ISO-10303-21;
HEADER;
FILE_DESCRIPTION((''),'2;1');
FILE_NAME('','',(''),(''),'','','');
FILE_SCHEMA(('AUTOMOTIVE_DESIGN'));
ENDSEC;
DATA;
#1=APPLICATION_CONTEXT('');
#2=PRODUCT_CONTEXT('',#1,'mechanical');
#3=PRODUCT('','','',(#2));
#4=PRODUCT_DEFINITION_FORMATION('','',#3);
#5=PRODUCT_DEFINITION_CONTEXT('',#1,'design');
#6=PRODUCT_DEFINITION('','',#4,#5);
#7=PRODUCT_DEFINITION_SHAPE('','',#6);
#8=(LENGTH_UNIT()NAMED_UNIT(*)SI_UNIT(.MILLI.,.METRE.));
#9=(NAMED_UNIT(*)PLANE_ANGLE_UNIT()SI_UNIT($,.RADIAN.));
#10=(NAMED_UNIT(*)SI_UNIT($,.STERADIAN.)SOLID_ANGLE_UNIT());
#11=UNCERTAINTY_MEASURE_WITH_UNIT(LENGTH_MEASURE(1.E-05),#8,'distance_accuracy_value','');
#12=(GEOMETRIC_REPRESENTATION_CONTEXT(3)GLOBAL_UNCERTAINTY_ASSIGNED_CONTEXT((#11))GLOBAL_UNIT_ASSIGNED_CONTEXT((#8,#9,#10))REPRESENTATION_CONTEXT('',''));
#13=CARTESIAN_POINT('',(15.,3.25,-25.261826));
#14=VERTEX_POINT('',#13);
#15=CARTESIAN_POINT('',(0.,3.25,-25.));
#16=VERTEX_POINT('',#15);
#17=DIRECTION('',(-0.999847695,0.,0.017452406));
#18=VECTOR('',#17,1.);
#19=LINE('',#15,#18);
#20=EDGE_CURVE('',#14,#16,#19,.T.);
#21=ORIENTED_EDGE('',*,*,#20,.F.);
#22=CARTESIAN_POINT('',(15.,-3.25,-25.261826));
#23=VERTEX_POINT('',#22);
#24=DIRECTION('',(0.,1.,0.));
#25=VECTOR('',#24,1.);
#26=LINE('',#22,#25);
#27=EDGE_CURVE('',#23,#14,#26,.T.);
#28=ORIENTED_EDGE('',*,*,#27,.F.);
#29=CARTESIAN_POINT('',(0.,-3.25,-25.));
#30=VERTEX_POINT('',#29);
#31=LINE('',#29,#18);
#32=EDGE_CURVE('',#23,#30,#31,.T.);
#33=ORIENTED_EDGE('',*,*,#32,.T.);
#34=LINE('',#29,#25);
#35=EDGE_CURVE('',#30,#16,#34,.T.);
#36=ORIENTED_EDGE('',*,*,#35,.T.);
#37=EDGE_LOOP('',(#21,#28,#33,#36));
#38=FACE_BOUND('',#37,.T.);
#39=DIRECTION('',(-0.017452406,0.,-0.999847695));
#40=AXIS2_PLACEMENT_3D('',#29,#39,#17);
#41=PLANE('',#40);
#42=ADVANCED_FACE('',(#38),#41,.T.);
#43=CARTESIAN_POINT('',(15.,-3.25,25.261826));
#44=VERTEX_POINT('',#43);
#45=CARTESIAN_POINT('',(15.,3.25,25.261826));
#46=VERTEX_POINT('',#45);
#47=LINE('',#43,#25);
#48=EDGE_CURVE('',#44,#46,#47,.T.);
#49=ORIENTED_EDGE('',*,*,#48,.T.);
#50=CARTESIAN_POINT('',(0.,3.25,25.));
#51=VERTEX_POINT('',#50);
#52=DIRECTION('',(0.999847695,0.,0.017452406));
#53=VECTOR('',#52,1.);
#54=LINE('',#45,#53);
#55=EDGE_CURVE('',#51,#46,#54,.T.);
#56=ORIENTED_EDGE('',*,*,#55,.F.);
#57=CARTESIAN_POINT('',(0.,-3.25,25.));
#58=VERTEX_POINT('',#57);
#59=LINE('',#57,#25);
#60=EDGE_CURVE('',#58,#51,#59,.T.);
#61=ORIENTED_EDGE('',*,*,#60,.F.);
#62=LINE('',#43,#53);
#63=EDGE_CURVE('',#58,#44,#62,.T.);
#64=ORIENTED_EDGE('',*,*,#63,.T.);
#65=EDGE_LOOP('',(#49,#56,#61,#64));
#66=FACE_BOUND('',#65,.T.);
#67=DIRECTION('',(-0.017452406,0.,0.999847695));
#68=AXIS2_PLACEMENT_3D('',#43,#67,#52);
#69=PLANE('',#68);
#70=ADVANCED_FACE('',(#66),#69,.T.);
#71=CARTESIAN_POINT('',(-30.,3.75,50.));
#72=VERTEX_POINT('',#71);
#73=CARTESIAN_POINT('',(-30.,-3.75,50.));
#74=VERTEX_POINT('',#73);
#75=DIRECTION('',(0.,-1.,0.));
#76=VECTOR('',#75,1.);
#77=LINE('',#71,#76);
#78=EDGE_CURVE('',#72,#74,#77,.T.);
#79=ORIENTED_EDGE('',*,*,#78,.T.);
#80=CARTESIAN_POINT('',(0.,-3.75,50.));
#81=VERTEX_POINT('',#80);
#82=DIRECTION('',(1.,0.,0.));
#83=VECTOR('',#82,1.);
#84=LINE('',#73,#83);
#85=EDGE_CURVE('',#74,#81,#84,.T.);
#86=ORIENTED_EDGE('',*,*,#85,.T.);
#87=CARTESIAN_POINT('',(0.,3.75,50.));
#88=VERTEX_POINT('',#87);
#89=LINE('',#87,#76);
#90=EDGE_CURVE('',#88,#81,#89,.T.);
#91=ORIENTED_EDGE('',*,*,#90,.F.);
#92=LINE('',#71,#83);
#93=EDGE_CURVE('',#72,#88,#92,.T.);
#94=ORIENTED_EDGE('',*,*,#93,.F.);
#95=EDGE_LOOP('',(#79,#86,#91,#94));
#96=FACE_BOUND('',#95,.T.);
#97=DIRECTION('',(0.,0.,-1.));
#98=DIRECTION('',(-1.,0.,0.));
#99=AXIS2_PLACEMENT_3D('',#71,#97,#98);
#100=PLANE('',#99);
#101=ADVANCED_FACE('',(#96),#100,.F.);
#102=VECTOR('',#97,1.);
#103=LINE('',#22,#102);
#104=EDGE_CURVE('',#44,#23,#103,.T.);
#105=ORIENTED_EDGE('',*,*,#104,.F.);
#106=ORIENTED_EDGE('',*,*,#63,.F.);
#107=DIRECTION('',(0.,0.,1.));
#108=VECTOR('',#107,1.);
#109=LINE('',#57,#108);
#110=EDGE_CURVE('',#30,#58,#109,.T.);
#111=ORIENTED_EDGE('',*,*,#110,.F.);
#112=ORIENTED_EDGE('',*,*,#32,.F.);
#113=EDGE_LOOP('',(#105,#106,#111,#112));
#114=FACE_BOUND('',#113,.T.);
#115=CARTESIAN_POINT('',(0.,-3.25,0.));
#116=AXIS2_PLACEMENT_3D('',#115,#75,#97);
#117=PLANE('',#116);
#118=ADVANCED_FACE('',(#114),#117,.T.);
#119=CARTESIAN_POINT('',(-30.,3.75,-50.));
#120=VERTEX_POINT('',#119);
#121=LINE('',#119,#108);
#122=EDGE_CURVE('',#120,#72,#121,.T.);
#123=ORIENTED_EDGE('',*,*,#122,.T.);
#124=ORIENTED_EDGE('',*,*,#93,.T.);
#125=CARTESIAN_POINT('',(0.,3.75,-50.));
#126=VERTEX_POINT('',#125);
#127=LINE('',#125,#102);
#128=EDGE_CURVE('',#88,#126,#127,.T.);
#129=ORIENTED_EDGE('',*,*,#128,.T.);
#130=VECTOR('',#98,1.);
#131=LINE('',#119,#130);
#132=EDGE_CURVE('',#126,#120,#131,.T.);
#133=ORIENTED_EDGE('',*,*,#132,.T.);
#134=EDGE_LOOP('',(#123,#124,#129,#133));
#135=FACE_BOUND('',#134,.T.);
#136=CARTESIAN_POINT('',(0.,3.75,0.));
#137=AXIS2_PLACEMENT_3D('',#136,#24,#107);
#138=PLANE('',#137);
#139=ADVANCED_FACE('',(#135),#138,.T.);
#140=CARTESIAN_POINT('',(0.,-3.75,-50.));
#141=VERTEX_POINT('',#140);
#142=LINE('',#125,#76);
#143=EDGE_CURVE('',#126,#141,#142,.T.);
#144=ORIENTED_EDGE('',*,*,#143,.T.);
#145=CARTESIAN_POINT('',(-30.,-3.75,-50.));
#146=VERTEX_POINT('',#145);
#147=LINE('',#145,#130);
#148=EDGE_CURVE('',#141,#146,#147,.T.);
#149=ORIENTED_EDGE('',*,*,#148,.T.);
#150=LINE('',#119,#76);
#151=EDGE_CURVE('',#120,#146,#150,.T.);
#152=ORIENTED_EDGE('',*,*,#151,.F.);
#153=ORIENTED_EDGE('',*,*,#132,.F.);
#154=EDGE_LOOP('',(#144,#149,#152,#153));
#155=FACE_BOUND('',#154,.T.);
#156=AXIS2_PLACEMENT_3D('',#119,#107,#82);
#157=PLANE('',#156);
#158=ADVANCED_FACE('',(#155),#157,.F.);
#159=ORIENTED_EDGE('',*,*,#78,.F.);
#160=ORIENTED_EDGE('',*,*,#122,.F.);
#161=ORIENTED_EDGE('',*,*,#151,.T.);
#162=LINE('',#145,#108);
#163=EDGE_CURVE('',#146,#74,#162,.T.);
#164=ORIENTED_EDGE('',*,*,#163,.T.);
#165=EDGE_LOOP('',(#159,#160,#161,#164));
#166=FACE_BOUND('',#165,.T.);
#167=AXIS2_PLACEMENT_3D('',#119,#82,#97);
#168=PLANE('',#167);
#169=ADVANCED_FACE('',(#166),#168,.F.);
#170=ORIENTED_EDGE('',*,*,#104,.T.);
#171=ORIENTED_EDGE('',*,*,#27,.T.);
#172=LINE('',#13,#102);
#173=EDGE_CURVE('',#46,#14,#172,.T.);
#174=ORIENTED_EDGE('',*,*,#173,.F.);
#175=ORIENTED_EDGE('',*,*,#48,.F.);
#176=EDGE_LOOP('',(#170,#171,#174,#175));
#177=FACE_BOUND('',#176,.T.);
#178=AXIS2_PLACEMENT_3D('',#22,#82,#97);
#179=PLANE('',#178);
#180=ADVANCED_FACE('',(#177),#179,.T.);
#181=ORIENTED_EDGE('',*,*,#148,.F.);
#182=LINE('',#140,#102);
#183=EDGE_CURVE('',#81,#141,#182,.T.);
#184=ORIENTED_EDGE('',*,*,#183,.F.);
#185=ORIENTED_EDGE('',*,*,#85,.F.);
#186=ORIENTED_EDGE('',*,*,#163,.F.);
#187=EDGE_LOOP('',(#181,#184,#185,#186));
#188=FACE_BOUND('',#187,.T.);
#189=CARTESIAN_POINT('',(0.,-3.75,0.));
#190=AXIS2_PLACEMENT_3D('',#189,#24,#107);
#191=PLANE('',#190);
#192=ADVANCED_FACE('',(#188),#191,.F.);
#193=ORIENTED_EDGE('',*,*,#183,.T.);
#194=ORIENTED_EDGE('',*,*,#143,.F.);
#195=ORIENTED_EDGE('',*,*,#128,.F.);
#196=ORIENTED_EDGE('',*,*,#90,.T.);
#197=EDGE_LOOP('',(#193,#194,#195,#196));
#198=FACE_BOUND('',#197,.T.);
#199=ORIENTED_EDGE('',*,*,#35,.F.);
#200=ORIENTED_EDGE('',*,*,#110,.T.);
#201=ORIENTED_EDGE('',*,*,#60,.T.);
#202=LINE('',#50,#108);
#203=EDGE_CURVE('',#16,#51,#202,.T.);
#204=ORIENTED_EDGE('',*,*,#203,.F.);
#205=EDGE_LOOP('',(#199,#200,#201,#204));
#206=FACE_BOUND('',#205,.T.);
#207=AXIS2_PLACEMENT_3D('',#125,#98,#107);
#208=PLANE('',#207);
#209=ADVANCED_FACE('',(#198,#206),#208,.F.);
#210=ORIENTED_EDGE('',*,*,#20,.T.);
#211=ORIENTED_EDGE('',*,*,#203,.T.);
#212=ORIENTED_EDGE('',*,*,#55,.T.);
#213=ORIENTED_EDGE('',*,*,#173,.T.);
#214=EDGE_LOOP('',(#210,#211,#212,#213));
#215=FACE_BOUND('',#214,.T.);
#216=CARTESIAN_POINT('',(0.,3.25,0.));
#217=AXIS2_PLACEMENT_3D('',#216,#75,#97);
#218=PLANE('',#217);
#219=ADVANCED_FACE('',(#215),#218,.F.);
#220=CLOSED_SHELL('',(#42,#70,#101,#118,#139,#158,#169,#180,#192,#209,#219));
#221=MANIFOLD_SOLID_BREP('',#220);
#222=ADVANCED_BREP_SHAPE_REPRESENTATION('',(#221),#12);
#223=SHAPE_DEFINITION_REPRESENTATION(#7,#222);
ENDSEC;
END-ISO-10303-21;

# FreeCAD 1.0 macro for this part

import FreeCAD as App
import Part
import Sketcher
from FreeCAD import Vector
Q = App.Units.Quantity

doc = App.newDocument("Part")
params = doc.addObject("Spreadsheet::Sheet", "Params")
for row, (alias, value) in enumerate([
    ("sketch1_width", "30 mm"),
    ("sketch1_height", "100 mm"),
    ("pad1_length", "7.5 mm"),
    ("sketch2_height", "50 mm"),
    ("pad2_length", "6.5 mm"),
], start=1):
    params.set(f"A{row}", alias)
    params.set(f"B{row}", "=" + value)
    params.setAlias(f"B{row}", alias)

body = doc.addObject("PartDesign::Body", "Body")

# Sketch on XZ plane
sketch1 = body.newObject("Sketcher::SketchObject", "Sketch")
sketch1.AttachmentSupport = (doc.getObject("XZ_Plane"), [""])
sketch1.MapMode = "FlatFace"
sketch1.addGeometry(Part.LineSegment(Vector(-30, -50, 0), Vector(-30, 50, 0)), False)
sketch1.addGeometry(Part.LineSegment(Vector(-30, 50, 0), Vector(0, 50, 0)), False)
sketch1.addGeometry(Part.LineSegment(Vector(0, 50, 0), Vector(0, -50, 0)), False)
sketch1.addGeometry(Part.LineSegment(Vector(0, -50, 0), Vector(-30, -50, 0)), False)
sketch1.addConstraint(Sketcher.Constraint("Coincident", 0, 2, 1, 1))
sketch1.addConstraint(Sketcher.Constraint("Coincident", 1, 2, 2, 1))
sketch1.addConstraint(Sketcher.Constraint("Coincident", 2, 2, 3, 1))
sketch1.addConstraint(Sketcher.Constraint("Coincident", 3, 2, 0, 1))
sketch1.addConstraint(Sketcher.Constraint("Vertical", 0))
sketch1.addConstraint(Sketcher.Constraint("Horizontal", 1))
sketch1.addConstraint(Sketcher.Constraint("Vertical", 2))
sketch1.addConstraint(Sketcher.Constraint("Horizontal", 3))
sketch1.addConstraint(Sketcher.Constraint("Symmetric", 1, 2, 2, 2, -1, 1))
sketch1.addConstraint(Sketcher.Constraint("DistanceX", 1, 1, 1, 2, Q("30 mm")))
sketch1.addConstraint(Sketcher.Constraint("DistanceY", 0, 1, 0, 2, Q("100 mm")))
sketch1.setExpression("Constraints[9]", "Params.sketch1_width")
sketch1.setExpression("Constraints[10]", "Params.sketch1_height")
pad1 = body.newObject("PartDesign::Pad", "Pad")
pad1.Profile = sketch1
pad1.setExpression("Length", "Params.pad1_length")
pad1.Midplane = True

# Sketch on XZ plane
sketch2 = body.newObject("Sketcher::SketchObject", "Sketch001")
sketch2.AttachmentSupport = (doc.getObject("XZ_Plane"), [""])
sketch2.MapMode = "FlatFace"
sketch2.AttachmentOffset = App.Placement(Vector(0, 0, -3.25), App.Rotation())
sketch2.addGeometry(Part.LineSegment(Vector(15, -25.261826, 0), Vector(0, -25, 0)), False)
sketch2.addGeometry(Part.LineSegment(Vector(0, -25, 0), Vector(0, 25, 0)), False)
sketch2.addGeometry(Part.LineSegment(Vector(0, 25, 0), Vector(15, 25.261826, 0)), False)
sketch2.addGeometry(Part.LineSegment(Vector(15, 25.261826, 0), Vector(15, -25.261826, 0)), False)
sketch2.addConstraint(Sketcher.Constraint("Coincident", 0, 2, 1, 1))
sketch2.addConstraint(Sketcher.Constraint("Coincident", 1, 2, 2, 1))
sketch2.addConstraint(Sketcher.Constraint("Coincident", 2, 2, 3, 1))
sketch2.addConstraint(Sketcher.Constraint("Coincident", 3, 2, 0, 1))
sketch2.addConstraint(Sketcher.Constraint("Vertical", 1))
sketch2.addConstraint(Sketcher.Constraint("Vertical", 3))
sketch2.addConstraint(Sketcher.Constraint("Symmetric", 0, 2, 1, 2, -1, 1))
sketch2.addConstraint(Sketcher.Constraint("Equal", 0, 2))
sketch2.addConstraint(Sketcher.Constraint("DistanceY", 1, 1, 1, 2, Q("50 mm")))
sketch2.addConstraint(Sketcher.Constraint("Angle", 0, Q("179 deg")))
sketch2.addConstraint(Sketcher.Constraint("DistanceX", -1, 1, 2, 2, Q("15 mm")))
sketch2.setExpression("Constraints[8]", "Params.sketch2_height")
pad2 = body.newObject("PartDesign::Pad", "Pad001")
pad2.Profile = sketch2
pad2.setExpression("Length", "Params.pad2_length")

doc.recompute()
